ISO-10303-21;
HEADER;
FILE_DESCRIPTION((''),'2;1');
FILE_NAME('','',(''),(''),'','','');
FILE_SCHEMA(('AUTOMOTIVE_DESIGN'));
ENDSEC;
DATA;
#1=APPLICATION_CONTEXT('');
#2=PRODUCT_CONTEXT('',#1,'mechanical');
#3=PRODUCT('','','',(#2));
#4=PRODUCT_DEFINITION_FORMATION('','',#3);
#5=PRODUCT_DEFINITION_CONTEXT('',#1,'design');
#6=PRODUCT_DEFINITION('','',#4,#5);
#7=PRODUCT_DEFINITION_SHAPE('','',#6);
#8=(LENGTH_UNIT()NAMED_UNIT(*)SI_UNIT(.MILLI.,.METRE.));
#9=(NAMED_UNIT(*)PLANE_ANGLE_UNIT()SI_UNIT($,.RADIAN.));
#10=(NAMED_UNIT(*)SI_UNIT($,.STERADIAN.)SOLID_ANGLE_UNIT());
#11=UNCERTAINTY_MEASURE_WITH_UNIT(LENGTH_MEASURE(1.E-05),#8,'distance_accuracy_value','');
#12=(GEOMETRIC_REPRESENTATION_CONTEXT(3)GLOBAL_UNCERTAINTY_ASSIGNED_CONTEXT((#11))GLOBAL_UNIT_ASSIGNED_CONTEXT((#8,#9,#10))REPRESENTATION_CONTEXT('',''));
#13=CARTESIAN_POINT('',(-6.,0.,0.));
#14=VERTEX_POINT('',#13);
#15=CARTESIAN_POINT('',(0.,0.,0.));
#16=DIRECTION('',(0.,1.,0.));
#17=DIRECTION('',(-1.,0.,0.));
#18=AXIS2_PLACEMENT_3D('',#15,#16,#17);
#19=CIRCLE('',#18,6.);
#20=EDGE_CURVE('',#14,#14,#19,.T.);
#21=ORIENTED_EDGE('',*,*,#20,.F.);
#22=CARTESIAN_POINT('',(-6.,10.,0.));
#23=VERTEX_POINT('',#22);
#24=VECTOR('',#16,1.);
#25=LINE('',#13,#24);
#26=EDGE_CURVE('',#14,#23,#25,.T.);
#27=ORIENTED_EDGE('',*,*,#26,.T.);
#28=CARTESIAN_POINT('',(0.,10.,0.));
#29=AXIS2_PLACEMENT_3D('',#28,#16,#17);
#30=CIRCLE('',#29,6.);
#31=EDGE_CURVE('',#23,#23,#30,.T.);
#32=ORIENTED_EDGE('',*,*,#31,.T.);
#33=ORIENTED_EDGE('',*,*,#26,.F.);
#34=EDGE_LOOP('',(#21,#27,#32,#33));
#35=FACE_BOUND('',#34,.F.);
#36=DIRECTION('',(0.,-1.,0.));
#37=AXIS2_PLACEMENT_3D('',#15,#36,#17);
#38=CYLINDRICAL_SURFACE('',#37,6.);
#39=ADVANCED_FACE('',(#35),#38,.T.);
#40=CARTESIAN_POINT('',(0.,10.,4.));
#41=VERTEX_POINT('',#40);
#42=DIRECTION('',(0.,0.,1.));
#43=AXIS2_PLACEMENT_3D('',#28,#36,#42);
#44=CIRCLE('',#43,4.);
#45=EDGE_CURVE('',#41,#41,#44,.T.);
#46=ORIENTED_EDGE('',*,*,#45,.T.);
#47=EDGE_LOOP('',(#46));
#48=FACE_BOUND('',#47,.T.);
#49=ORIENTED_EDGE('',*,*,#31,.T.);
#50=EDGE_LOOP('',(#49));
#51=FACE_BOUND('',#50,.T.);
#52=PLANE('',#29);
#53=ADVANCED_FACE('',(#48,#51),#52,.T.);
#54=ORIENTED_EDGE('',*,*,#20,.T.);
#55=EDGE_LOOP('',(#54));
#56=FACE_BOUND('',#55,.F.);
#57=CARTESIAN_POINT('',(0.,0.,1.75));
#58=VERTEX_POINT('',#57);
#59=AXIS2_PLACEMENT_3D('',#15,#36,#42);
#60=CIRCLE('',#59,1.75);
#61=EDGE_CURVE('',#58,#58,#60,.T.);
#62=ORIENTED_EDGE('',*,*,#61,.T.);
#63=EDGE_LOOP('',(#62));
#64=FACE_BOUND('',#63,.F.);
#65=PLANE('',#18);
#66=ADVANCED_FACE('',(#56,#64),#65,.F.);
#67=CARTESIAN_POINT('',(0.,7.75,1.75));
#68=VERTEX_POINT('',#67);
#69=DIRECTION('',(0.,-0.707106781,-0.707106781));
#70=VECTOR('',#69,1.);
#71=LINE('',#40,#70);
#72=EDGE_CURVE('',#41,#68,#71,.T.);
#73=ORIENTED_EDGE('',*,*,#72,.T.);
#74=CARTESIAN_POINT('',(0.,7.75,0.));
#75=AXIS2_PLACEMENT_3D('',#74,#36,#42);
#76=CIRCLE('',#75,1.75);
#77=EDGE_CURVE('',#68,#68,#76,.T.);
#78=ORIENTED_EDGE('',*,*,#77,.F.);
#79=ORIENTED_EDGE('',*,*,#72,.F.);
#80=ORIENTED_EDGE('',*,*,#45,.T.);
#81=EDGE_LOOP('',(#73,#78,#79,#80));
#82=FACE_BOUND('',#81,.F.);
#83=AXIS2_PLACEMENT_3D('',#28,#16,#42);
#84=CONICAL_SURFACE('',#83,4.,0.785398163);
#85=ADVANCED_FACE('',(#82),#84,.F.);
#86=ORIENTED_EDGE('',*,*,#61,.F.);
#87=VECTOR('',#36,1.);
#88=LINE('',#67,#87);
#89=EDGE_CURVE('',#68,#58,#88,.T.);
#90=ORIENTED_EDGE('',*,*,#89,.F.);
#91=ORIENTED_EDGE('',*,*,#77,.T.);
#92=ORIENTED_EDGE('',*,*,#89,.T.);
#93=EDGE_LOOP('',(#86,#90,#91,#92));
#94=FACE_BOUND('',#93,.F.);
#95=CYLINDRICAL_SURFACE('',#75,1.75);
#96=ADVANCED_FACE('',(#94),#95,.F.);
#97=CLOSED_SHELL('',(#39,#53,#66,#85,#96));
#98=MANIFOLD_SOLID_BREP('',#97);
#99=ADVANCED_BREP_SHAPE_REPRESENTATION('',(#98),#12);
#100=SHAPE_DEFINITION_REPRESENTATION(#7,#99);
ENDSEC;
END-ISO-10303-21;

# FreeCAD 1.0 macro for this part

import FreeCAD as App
import Part
import Sketcher
Q = App.Units.Quantity

doc = App.newDocument("Part")
body = doc.addObject("PartDesign::Body", "Body")

# Sketch on XZ plane
sketch1 = doc.addObject("Sketcher::SketchObject", "Sketch")
body.addObject(sketch1)
sketch1.AttachmentSupport = (doc.XZ_Plane, [""])
sketch1.MapMode = "FlatFace"
sketch1.addGeometry(Part.Circle(App.Vector(0, 0, 0), App.Vector(0, 0, 1), 6), False)
sketch1.addConstraint([
    Sketcher.Constraint("Coincident", 0, 3, -1, 1),
    Sketcher.Constraint("Diameter", 0, Q("12 mm")),
])
pad1 = doc.addObject("PartDesign::Pad", "Pad")
body.addObject(pad1)
pad1.Profile = sketch1
pad1.Length = 10
pad1.Reversed = True

# Sketch on XZ plane
sketch2 = doc.addObject("Sketcher::SketchObject", "Sketch001")
body.addObject(sketch2)
sketch2.AttachmentSupport = (doc.XZ_Plane, [""])
sketch2.MapMode = "FlatFace"
sketch2.AttachmentOffset = App.Placement(App.Vector(0, 0, -10), App.Rotation())
sketch2.addGeometry(Part.Circle(App.Vector(0, 0, 0), App.Vector(0, 0, 1), 1.8), False)
sketch2.addConstraint([
    Sketcher.Constraint("Coincident", 0, 3, -1, 1),
    Sketcher.Constraint("Diameter", 0, Q("3.5 mm")),
])
doc.recompute()
hole = doc.addObject("PartDesign::Hole", "Hole")
body.addObject(hole)
hole.Profile = sketch2
hole.ThreadType = "None"
hole.Diameter = 3.5
hole.DepthType = "ThroughAll"
hole.HoleCutType = "Countersink"
hole.HoleCutDiameter = 8
hole.HoleCutCountersinkAngle = 90
hole.Reversed = True

doc.recompute()
